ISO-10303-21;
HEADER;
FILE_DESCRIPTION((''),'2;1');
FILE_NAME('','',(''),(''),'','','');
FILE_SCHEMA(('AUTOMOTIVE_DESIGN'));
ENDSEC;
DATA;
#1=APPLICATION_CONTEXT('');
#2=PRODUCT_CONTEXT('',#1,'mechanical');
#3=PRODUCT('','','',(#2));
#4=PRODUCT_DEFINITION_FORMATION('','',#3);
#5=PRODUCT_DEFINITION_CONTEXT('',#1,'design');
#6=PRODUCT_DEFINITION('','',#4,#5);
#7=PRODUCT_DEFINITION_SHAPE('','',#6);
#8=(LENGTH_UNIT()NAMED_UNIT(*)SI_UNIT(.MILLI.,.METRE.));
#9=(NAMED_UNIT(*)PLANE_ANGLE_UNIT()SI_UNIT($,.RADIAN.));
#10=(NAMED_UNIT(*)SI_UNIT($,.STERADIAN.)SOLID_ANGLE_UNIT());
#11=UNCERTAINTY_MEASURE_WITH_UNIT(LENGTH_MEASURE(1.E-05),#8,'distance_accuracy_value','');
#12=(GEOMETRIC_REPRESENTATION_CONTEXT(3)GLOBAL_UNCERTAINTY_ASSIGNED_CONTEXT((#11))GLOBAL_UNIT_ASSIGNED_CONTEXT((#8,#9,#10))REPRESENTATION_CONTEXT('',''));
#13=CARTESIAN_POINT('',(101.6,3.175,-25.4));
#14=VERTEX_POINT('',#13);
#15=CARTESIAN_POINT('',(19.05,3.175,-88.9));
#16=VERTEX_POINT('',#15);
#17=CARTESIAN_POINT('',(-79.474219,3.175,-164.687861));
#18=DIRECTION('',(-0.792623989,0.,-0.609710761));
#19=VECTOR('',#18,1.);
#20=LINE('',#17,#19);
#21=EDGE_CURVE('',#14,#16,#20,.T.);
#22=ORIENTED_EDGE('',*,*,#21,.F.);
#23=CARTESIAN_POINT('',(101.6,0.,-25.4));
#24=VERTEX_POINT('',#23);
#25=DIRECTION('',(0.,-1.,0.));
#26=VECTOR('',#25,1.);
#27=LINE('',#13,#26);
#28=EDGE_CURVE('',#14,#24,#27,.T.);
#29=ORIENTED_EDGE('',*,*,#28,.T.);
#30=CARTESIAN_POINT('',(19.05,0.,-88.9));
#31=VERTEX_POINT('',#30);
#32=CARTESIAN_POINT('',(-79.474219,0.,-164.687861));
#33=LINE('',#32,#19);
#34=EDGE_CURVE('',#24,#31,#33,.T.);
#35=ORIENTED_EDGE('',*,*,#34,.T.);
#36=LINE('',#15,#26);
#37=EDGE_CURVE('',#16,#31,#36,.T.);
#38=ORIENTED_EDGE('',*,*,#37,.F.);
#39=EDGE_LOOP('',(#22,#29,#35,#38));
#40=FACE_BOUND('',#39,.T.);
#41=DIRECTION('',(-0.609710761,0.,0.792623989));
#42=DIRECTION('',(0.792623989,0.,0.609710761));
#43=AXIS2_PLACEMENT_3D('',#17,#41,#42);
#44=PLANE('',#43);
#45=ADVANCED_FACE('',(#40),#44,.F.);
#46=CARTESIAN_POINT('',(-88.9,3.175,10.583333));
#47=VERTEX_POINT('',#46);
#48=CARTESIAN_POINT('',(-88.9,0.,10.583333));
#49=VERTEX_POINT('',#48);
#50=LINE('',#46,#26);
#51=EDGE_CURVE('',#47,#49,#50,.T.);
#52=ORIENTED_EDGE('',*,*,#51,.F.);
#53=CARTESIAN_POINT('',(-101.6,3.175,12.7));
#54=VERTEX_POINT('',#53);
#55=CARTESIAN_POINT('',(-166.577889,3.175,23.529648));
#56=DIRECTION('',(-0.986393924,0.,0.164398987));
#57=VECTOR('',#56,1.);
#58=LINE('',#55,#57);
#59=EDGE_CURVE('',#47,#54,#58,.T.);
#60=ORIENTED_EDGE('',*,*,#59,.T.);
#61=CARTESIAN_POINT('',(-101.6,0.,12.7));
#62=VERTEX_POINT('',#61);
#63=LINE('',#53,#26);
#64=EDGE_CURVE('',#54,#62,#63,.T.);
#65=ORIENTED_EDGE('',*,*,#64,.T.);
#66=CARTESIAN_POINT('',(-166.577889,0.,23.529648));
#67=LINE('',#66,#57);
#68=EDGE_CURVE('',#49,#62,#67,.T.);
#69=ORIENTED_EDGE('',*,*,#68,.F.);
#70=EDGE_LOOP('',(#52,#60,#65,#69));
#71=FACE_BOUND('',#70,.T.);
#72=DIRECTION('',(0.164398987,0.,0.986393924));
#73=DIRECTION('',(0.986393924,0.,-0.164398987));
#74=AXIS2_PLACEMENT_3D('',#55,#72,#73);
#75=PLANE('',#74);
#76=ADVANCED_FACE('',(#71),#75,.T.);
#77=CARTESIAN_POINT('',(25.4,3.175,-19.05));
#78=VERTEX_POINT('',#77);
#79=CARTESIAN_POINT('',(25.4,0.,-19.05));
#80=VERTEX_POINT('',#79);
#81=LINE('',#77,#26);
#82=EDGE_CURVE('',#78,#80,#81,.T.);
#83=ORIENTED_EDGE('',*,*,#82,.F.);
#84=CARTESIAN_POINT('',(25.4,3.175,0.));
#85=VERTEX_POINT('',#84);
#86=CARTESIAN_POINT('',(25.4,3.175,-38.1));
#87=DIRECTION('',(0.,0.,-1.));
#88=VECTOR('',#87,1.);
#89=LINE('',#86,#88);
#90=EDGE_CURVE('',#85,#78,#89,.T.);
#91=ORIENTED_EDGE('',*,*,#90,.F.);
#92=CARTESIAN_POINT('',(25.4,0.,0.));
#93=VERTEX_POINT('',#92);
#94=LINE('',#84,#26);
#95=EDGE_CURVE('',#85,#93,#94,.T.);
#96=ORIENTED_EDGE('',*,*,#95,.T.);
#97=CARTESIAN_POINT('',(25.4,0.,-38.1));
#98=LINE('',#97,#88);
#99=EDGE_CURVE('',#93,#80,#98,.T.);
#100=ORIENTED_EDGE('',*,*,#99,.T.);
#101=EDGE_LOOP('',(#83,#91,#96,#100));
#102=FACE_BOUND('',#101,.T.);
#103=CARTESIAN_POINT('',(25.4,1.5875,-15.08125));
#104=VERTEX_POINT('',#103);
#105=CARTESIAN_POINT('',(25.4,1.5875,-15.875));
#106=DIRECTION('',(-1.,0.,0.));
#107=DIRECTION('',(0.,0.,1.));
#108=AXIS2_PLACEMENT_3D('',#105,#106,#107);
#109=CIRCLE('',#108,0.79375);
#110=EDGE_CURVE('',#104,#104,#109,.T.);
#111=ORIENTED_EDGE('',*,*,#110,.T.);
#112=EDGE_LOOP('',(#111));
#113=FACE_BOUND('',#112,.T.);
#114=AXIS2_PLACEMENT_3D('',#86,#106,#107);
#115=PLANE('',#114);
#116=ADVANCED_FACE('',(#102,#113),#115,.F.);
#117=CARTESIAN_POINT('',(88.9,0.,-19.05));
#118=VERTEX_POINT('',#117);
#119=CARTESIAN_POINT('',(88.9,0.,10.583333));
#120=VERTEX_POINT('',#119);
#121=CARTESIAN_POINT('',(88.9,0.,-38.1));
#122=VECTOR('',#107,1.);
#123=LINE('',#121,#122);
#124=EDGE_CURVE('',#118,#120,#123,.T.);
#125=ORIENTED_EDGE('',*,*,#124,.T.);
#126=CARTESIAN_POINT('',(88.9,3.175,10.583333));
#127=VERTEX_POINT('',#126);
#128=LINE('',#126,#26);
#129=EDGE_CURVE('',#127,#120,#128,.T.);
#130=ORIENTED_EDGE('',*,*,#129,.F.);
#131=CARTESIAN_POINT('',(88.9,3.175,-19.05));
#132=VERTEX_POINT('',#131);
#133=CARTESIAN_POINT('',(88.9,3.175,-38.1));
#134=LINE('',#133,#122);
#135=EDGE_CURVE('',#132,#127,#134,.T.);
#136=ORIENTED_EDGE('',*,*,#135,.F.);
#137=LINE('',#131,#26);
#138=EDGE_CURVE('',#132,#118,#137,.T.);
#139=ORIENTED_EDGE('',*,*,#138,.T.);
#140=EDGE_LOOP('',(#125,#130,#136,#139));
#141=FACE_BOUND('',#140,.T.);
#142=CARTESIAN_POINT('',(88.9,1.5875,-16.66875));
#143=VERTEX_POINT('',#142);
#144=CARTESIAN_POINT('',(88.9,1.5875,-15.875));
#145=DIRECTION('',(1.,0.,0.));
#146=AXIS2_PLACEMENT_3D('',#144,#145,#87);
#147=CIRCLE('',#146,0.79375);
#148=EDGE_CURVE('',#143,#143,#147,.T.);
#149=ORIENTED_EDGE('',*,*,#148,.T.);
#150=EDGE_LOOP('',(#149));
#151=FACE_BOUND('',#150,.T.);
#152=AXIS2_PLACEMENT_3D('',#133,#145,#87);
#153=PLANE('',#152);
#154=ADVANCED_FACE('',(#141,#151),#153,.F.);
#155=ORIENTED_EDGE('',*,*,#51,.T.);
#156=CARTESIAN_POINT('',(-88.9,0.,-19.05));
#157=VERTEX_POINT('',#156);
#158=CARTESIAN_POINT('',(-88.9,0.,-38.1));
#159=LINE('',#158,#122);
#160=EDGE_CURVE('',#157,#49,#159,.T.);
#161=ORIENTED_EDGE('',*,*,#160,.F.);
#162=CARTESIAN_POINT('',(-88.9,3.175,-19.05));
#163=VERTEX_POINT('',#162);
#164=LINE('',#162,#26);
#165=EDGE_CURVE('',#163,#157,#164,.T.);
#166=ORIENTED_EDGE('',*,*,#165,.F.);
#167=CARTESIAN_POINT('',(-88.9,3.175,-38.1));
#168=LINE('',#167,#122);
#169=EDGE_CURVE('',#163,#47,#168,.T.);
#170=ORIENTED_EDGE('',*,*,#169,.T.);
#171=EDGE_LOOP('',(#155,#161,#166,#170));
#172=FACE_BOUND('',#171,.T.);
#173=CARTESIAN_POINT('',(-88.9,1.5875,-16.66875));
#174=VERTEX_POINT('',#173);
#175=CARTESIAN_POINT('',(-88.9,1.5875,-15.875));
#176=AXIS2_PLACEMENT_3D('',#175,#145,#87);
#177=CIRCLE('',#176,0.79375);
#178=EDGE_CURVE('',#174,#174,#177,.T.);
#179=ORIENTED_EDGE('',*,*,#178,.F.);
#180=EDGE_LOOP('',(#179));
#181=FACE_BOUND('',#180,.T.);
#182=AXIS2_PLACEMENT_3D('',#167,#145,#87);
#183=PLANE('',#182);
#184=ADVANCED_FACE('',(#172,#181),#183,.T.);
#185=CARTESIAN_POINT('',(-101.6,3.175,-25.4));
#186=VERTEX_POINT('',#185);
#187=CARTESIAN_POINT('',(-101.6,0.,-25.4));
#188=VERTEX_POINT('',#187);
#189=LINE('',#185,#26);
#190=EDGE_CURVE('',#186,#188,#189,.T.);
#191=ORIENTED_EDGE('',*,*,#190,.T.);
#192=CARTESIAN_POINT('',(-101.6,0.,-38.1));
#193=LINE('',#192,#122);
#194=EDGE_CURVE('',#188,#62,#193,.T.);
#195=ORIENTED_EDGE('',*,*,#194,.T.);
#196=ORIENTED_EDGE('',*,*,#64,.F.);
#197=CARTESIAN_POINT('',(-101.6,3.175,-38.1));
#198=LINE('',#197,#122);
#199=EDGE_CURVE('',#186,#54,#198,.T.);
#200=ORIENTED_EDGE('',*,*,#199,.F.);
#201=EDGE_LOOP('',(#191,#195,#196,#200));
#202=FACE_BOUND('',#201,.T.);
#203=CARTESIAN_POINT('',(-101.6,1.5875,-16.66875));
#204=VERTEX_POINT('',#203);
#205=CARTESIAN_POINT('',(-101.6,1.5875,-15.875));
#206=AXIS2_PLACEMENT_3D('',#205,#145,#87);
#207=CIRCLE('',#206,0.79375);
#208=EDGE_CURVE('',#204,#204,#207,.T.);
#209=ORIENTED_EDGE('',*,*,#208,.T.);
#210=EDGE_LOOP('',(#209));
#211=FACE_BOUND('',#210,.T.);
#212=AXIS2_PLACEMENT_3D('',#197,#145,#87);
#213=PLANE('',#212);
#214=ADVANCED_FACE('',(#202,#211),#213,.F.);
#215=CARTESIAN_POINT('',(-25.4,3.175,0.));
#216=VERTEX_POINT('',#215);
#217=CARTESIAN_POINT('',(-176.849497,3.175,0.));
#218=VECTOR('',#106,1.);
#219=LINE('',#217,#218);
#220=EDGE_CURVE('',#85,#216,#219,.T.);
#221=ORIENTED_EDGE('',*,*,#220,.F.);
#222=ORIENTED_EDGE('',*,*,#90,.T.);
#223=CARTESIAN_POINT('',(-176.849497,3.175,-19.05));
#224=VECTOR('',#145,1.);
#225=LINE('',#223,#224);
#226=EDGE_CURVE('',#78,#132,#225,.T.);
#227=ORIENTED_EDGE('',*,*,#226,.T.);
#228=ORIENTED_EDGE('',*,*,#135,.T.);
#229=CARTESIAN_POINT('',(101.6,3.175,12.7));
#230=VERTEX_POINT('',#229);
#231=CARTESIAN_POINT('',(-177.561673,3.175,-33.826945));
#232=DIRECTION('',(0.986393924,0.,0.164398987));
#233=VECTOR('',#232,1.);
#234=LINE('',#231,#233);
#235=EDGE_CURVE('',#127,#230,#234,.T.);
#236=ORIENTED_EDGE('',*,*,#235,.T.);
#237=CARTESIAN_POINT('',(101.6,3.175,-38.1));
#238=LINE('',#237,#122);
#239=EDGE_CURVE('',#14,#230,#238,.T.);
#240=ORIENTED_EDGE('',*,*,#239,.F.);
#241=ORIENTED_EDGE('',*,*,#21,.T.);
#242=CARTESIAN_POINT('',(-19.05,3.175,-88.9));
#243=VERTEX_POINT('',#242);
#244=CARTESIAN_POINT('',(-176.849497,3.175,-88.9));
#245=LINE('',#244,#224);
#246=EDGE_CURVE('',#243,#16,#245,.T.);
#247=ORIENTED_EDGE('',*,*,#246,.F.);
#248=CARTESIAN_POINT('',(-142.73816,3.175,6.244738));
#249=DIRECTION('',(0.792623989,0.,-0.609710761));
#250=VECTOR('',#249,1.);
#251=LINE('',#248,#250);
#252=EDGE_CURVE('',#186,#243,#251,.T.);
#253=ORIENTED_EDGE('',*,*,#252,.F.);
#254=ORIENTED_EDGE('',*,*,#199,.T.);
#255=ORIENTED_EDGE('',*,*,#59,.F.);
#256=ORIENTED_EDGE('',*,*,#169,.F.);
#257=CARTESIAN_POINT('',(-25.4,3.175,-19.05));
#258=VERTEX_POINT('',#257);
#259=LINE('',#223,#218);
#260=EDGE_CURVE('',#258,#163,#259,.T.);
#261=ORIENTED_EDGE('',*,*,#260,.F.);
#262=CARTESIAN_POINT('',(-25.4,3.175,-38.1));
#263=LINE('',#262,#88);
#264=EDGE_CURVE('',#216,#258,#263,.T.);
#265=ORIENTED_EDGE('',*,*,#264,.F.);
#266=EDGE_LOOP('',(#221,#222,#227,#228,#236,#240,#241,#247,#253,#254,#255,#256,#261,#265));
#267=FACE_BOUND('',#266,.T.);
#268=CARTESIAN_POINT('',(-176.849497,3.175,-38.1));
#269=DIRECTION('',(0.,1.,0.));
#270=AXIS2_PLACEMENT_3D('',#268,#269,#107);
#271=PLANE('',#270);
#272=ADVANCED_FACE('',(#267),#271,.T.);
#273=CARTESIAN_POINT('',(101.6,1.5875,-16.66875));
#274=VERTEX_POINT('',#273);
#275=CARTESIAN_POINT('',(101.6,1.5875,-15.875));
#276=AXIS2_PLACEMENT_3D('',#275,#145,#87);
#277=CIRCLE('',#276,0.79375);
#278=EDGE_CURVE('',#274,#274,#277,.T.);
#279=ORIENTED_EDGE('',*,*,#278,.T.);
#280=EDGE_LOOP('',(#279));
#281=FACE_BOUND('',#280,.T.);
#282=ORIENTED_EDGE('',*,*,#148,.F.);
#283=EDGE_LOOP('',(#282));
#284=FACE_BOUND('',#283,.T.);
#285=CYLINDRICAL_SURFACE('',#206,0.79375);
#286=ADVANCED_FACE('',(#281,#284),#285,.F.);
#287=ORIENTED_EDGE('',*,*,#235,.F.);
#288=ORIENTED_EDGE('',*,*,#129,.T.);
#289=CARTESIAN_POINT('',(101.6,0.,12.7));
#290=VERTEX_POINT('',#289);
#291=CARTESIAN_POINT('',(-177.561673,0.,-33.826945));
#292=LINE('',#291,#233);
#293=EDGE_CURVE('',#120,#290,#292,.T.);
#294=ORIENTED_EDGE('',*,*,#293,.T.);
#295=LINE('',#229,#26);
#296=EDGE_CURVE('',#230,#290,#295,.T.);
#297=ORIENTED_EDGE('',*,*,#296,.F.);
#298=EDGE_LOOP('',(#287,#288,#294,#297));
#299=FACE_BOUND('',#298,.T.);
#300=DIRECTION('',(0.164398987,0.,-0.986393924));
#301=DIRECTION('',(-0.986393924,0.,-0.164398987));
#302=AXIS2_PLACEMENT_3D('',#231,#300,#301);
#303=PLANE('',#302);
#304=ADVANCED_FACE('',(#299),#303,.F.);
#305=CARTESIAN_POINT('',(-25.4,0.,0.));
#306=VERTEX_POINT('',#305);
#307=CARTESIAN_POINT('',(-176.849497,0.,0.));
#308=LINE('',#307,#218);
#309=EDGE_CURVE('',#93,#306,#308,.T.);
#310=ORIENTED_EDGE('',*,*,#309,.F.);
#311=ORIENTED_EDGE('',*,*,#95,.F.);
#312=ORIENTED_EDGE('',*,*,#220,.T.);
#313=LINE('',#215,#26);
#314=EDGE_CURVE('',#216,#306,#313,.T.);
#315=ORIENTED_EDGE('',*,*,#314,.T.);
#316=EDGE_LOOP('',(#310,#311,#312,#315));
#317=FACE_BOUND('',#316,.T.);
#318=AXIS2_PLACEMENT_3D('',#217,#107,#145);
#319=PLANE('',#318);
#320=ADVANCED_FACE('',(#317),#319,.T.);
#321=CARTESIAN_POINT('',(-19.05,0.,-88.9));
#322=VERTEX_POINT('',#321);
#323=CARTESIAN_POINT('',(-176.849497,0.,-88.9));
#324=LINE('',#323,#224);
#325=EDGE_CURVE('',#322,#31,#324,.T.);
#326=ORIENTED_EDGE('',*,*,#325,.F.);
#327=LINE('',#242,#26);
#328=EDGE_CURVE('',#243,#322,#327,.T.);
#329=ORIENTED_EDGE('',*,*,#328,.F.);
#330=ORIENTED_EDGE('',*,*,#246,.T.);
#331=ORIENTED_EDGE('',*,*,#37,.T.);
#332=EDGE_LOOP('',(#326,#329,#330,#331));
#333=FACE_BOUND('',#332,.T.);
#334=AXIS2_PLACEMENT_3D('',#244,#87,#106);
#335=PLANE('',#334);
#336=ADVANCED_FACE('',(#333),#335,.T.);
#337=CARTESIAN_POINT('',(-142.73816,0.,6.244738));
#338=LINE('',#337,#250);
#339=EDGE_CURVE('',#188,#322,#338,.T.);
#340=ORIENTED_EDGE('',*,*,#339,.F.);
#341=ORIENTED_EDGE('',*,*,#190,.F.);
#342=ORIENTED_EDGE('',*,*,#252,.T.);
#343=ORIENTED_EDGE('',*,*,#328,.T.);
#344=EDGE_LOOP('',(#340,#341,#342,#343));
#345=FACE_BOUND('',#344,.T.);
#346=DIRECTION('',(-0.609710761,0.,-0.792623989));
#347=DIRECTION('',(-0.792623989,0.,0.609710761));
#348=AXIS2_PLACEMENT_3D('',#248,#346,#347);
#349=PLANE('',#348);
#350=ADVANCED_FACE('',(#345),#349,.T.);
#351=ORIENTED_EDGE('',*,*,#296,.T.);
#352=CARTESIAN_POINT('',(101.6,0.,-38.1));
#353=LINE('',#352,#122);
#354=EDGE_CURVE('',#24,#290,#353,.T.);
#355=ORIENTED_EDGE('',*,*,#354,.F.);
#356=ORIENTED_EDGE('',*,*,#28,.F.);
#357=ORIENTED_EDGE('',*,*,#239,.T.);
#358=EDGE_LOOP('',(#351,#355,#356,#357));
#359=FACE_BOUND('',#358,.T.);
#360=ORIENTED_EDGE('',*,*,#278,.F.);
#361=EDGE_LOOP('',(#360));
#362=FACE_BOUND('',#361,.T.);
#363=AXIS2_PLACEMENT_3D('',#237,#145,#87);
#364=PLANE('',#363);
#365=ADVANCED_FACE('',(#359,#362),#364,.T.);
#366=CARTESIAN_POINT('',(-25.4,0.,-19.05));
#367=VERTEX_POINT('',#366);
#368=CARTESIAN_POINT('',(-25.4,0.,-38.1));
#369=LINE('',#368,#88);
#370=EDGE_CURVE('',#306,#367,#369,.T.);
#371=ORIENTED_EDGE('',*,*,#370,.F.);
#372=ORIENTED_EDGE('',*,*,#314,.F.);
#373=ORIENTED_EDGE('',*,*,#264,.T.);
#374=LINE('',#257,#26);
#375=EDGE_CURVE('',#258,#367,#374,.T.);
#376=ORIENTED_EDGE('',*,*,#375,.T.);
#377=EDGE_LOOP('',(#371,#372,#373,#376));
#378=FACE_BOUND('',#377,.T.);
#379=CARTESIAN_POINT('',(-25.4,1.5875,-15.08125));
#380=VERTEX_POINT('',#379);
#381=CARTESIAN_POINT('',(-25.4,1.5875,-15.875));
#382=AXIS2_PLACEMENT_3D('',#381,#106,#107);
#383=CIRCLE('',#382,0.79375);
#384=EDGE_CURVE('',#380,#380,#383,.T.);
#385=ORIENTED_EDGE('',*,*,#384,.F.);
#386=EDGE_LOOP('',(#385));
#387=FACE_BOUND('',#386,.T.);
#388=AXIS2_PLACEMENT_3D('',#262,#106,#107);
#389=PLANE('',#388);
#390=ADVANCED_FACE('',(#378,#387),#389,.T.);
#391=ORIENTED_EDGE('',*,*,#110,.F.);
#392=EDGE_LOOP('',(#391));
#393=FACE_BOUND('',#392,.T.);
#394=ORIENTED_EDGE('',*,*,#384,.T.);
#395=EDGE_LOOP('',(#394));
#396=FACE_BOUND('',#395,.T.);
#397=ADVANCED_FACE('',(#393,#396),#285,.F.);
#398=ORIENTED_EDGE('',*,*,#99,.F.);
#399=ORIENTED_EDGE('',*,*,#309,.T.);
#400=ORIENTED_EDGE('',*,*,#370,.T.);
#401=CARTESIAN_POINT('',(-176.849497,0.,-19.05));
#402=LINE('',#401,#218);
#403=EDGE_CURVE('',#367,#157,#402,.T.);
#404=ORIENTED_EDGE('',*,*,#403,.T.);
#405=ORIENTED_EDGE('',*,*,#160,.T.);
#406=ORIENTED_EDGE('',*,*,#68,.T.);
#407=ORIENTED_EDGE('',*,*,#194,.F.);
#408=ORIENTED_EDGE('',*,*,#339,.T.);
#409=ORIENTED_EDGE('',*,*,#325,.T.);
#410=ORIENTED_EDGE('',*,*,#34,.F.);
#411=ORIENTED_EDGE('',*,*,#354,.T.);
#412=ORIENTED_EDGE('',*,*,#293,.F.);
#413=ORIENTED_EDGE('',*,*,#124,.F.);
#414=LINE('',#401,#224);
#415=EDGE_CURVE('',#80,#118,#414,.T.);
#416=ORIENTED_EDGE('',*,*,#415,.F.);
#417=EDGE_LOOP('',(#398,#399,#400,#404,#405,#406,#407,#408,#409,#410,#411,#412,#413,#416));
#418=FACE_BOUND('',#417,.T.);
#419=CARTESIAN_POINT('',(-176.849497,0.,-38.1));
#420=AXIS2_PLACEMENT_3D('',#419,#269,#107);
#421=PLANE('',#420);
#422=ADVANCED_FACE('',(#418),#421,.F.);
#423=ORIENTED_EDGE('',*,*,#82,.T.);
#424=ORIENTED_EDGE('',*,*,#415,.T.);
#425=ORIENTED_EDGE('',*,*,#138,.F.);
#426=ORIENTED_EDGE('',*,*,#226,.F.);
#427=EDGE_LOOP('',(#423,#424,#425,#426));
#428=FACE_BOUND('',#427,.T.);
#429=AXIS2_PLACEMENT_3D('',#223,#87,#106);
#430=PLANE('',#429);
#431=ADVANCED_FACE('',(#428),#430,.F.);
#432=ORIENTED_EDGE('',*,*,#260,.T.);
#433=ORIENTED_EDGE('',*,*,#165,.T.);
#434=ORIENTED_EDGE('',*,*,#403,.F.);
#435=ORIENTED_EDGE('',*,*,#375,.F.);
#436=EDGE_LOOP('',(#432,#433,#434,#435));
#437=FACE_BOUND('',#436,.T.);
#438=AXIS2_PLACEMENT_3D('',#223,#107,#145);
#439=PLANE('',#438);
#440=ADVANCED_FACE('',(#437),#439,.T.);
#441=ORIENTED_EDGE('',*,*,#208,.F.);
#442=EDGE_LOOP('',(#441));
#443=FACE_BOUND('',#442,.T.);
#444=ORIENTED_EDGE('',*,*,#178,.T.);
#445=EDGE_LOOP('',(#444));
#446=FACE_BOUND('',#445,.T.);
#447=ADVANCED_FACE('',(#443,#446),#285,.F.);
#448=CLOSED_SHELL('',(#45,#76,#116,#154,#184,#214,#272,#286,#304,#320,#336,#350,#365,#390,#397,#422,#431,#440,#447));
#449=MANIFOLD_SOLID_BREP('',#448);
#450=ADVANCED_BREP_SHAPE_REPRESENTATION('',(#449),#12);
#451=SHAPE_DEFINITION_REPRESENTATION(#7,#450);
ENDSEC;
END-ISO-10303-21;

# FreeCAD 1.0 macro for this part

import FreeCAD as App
import Part
import Sketcher
from FreeCAD import Vector
Q = App.Units.Quantity


def add_polygon(sketch, points):
    """Adds a closed chain of lines whose ends are joined by coincident constraints."""
    first, n = sketch.GeometryCount, len(points)
    for a, b in zip(points, points[1:] + points[:1]):
        sketch.addGeometry(Part.LineSegment(App.Vector(*a, 0), App.Vector(*b, 0)), False)
    for i in range(n):
        sketch.addConstraint(Sketcher.Constraint("Coincident", first + i, 2, first + (i + 1) % n, 1))

doc = App.newDocument("Part")
body = doc.addObject("PartDesign::Body", "Body")

sketch1 = doc.addObject("Sketcher::SketchObject", "Sketch")
body.addObject(sketch1)
sketch1.AttachmentSupport = (doc.XZ_Plane, [""])
sketch1.MapMode = "FlatFace"
add_polygon(sketch1, [(-25, 0), (25, 0), (25, -19), (89, -19), (89, 11), (102, 13), (102, -25), (19, -89), (-19, -89), (-102, -25), (-102, 13), (-89, 11), (-89, -19), (-25, -19)])
sketch1.addConstraint([
    Sketcher.Constraint("Horizontal", 0),
    Sketcher.Constraint("Vertical", 1),
    Sketcher.Constraint("Horizontal", 2),
    Sketcher.Constraint("Vertical", 3),
    Sketcher.Constraint("Vertical", 5),
    Sketcher.Constraint("Horizontal", 7),
    Sketcher.Constraint("Vertical", 9),
    Sketcher.Constraint("Vertical", 11),
    Sketcher.Constraint("Horizontal", 12),
    Sketcher.Constraint("Vertical", 13),
    Sketcher.Constraint("Symmetric", 0, 2, 13, 2, -1, 1),
    Sketcher.Constraint("Symmetric", 5, 2, 8, 2, -2),
    Sketcher.Constraint("Symmetric", 3, 2, 10, 2, -2),
    Sketcher.Constraint("Horizontal", 4, 2, 9, 2),
    Sketcher.Constraint("Horizontal", 2, 2, 11, 2),
    Sketcher.Constraint("Equal", 7, 5),
    Sketcher.Constraint("Equal", 6, 8),
    Sketcher.Constraint("DistanceX", 0, 1, 0, 2, Q("2 in")),
    Sketcher.Constraint("DistanceX", 2, 1, 2, 2, Q("2.5 in")),
    Sketcher.Constraint("DistanceX", 7, 2, 7, 1, Q("1.5 in")),
    Sketcher.Constraint("DistanceX", -1, 1, 4, 2, Q("4 in")),
    Sketcher.Constraint("DistanceY", 5, 2, -1, 1, Q("1 in")),
    Sketcher.Constraint("DistanceY", 7, 2, 9, 2, Q("4 in")),
    Sketcher.Constraint("DistanceY", 1, 2, 1, 1, Q("0.75 in")),
    Sketcher.Constraint("Distance", 4, 12.875181),
])
pad1 = doc.addObject("PartDesign::Pad", "Pad")
body.addObject(pad1)
pad1.Profile = sketch1
pad1.Length = Q("0.125 in")
pad1.Reversed = True

sketch2 = doc.addObject("Sketcher::SketchObject", "Sketch001")
body.addObject(sketch2)
sketch2.AttachmentSupport = (doc.YZ_Plane, [""])
sketch2.MapMode = "FlatFace"
sketch2.AttachmentOffset = App.Placement(Vector(0, 0, -4 * 25.4), App.Rotation())
sketch2.addGeometry(Part.Circle(Vector(1.6, -15.9, 0), Vector(0, 0, 1), 0.8), False)
sketch2.addConstraint([
    Sketcher.Constraint("Diameter", 0, Q("0.0625 in")),
    Sketcher.Constraint("DistanceX", -1, 1, 0, 3, Q("0.0625 in")),
    Sketcher.Constraint("DistanceY", 0, 3, -1, 1, Q("0.625 in")),
])
pocket1 = doc.addObject("PartDesign::Pocket", "Pocket")
body.addObject(pocket1)
pocket1.Profile = sketch2
pocket1.Length = Q("8 in")
pocket1.Reversed = True

doc.recompute()
